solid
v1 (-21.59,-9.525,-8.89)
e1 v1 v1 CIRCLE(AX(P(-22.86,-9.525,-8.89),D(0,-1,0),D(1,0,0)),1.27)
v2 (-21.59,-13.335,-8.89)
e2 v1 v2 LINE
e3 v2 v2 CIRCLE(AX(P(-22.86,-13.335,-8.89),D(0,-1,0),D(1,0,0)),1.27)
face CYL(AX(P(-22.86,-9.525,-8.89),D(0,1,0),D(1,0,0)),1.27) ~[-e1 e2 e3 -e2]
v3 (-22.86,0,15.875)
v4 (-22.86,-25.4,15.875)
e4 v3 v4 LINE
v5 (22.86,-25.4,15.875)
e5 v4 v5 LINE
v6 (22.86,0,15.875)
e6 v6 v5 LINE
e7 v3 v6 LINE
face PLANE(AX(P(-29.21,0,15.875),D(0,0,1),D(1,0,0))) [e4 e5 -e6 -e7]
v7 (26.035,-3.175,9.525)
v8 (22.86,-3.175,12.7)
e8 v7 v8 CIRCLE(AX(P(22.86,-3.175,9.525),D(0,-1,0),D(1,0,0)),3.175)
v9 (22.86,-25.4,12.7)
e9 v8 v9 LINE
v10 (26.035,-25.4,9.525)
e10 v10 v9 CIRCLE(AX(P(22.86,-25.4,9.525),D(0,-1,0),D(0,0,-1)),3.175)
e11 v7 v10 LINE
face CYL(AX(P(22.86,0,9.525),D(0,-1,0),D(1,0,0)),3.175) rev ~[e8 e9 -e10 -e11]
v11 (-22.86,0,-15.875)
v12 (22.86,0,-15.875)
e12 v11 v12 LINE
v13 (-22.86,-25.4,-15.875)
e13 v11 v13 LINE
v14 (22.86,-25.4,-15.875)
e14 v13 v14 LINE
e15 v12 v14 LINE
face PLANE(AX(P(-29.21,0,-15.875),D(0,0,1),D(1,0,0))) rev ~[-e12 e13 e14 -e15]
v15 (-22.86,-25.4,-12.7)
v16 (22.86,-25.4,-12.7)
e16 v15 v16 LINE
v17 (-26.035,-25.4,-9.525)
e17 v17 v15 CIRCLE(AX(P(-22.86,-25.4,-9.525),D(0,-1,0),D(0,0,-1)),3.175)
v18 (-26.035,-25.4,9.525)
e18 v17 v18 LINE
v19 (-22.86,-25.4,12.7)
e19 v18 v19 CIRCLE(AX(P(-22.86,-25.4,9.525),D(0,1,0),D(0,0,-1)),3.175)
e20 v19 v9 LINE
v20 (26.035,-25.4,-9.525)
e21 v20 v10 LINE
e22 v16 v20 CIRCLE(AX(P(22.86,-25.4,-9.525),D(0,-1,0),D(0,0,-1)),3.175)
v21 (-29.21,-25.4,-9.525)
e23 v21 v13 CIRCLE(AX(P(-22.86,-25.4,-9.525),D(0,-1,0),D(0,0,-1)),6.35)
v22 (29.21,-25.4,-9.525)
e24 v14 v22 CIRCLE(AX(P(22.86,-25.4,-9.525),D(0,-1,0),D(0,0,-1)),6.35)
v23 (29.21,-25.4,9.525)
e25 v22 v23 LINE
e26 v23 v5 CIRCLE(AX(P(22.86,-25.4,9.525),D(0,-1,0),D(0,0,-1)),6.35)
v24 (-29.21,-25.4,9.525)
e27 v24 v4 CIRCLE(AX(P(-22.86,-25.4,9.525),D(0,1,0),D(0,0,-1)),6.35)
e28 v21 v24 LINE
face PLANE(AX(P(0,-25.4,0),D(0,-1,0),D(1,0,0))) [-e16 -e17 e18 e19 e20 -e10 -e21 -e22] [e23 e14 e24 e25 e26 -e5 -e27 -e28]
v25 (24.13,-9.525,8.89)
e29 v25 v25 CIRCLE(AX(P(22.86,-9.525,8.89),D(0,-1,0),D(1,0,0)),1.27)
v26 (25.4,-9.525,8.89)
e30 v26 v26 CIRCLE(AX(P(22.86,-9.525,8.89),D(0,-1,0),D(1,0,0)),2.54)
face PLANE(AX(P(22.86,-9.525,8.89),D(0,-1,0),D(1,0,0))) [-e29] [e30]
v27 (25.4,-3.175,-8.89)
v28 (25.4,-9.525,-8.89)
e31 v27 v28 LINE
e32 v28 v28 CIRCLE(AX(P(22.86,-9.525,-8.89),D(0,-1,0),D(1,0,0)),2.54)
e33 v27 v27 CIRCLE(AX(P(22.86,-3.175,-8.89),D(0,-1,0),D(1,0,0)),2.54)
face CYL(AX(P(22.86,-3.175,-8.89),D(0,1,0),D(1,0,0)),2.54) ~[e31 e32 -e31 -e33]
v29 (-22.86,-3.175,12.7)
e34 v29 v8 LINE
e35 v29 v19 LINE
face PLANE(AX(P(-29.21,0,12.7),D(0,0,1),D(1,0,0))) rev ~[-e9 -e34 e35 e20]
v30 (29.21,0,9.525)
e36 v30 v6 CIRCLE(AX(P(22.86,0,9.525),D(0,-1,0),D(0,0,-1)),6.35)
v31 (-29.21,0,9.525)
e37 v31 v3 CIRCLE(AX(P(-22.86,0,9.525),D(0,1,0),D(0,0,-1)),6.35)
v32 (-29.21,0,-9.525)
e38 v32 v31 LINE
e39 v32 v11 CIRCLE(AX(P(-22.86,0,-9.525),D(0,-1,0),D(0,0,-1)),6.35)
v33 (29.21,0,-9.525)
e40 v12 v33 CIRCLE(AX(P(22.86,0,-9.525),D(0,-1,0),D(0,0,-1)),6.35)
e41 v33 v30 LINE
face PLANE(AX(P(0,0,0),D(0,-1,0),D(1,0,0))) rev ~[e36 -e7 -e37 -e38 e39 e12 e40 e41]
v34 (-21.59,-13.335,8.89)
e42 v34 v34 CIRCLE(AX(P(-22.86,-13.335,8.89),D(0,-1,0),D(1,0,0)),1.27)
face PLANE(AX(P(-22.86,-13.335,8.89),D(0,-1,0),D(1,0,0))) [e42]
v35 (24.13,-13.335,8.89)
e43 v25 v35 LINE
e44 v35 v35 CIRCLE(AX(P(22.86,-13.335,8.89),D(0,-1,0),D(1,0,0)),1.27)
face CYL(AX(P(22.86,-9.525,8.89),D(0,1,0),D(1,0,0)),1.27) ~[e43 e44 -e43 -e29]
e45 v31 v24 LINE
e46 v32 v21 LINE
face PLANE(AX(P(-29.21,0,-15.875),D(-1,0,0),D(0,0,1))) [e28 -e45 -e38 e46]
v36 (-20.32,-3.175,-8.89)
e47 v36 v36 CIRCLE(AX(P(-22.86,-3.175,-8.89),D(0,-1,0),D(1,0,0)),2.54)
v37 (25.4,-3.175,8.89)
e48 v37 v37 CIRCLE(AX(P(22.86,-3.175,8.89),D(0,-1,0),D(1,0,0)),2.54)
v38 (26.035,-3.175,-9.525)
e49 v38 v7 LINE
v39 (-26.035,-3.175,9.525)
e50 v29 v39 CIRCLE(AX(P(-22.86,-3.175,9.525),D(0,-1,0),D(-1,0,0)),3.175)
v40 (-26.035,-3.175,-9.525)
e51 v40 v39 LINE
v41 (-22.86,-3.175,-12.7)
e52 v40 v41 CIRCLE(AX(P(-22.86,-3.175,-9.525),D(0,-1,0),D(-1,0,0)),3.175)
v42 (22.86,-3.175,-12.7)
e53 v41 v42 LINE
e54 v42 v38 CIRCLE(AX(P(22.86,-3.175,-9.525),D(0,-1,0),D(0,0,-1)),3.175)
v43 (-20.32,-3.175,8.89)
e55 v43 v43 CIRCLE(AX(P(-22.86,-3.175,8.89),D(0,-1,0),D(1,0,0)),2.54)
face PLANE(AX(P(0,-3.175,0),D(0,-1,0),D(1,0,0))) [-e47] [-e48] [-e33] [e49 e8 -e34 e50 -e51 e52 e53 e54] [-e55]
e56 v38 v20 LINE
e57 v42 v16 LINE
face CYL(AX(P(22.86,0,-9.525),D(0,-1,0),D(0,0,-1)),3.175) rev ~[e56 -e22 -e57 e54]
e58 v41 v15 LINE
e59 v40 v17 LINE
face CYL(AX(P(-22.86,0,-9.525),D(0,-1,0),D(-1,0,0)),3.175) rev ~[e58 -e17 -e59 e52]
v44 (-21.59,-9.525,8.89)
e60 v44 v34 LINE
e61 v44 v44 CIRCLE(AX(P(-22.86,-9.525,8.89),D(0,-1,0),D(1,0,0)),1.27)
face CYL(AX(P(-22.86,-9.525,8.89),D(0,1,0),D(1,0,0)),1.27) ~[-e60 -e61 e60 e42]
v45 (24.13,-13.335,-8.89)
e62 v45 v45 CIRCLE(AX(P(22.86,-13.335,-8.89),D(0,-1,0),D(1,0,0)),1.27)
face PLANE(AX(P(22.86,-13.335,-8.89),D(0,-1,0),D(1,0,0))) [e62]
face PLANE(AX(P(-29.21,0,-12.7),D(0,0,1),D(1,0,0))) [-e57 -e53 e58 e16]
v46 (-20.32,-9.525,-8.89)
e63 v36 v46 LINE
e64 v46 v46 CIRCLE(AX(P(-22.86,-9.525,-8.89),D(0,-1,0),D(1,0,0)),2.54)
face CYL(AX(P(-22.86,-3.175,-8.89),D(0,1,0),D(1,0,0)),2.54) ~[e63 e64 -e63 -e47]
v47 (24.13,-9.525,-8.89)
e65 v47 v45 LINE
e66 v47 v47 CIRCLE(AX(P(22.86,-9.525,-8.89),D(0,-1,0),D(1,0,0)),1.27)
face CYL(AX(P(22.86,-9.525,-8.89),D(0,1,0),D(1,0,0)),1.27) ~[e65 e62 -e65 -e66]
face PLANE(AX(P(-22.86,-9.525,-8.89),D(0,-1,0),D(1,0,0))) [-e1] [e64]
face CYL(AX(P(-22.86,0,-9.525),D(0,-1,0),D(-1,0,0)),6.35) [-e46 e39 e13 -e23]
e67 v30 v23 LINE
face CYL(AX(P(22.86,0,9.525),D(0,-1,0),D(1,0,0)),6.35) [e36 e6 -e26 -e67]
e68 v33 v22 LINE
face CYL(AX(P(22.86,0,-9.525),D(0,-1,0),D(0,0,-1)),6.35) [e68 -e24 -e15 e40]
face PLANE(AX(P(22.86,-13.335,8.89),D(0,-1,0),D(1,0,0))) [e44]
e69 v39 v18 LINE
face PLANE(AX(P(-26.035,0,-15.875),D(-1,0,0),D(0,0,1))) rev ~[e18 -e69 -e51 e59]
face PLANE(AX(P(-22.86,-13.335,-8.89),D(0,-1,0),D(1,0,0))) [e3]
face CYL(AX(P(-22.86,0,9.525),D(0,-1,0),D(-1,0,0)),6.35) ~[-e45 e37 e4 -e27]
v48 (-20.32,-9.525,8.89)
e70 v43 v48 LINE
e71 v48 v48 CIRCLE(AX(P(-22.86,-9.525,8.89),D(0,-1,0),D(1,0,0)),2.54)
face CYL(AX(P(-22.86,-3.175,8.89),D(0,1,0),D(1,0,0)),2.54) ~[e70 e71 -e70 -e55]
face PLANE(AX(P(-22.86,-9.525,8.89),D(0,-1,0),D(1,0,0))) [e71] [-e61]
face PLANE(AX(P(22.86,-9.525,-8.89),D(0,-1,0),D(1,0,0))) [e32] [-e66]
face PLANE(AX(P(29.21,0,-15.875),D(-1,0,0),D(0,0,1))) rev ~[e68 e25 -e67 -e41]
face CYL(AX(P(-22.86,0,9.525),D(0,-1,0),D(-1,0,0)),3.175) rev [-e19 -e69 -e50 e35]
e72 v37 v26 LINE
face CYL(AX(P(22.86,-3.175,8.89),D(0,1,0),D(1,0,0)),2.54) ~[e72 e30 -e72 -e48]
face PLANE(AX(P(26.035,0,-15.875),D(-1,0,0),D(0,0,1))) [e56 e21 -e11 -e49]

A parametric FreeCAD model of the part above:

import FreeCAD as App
import Part
import Sketcher
Q = App.Units.Quantity


def edges_at(feature, points):
    """Names of the edges that pass closest to the given points."""
    edges = feature.Shape.Edges
    near = lambda p: min(range(len(edges)), key=lambda i: edges[i].distToShape(Part.Vertex(*p))[0])
    return sorted({f"Edge{near(p) + 1}" for p in points})


def faces_at(feature, points):
    """Names of the faces that lie closest to the given points."""
    faces = feature.Shape.Faces
    near = lambda p: min(range(len(faces)), key=lambda i: faces[i].distToShape(Part.Vertex(*p))[0])
    return sorted({f"Face{near(p) + 1}" for p in points})


def add_polygon(sketch, points):
    """Adds a closed chain of lines whose ends are joined by coincident constraints."""
    first, n = sketch.GeometryCount, len(points)
    for a, b in zip(points, points[1:] + points[:1]):
        sketch.addGeometry(Part.LineSegment(App.Vector(*a, 0), App.Vector(*b, 0)), False)
    for i in range(n):
        sketch.addConstraint(Sketcher.Constraint("Coincident", first + i, 2, first + (i + 1) % n, 1))

doc = App.newDocument("Part")
body = doc.addObject("PartDesign::Body", "Body")

sketch1 = body.newObject("Sketcher::SketchObject", "Sketch")
sketch1.AttachmentSupport = (doc.getObject("XZ_Plane"), [""])
sketch1.MapMode = "FlatFace"
add_polygon(sketch1, [(-29.21, 15.875), (-29.21, -15.875), (29.21, -15.875), (29.21, 15.875)])
sketch1.addConstraint(Sketcher.Constraint("Vertical", 0))
sketch1.addConstraint(Sketcher.Constraint("Horizontal", 1))
sketch1.addConstraint(Sketcher.Constraint("Vertical", 2))
sketch1.addConstraint(Sketcher.Constraint("Horizontal", 3))
sketch1.addConstraint(Sketcher.Constraint("Symmetric", 0, 2, 2, 2, -1, 1))
sketch1.addConstraint(Sketcher.Constraint("DistanceX", 1, 1, 1, 2, Q("2.3 in")))
sketch1.addConstraint(Sketcher.Constraint("DistanceY", 0, 2, 0, 1, Q("1.25 in")))
pad1 = body.newObject("PartDesign::Pad", "Pad")
pad1.Profile = sketch1
pad1.Length = Q("1 in")
doc.recompute()

fillet = body.newObject("PartDesign::Fillet", "Fillet")
fillet.Base = (pad1, edges_at(pad1, [
    (29.21, -12.7, 15.875),
    (29.21, -12.7, -15.875),
    (-29.21, -12.7, 15.875),
    (-29.21, -12.7, -15.875),
]))
fillet.Radius = Q("0.25 in")
doc.recompute()

thickness = body.newObject("PartDesign::Thickness", "Thickness")
thickness.Base = (fillet, faces_at(fillet, [(0, -25.4, 0)]))
thickness.Value = Q("0.125 in")
thickness.Reversed = True
thickness.Join = "Arc"

sketch2 = body.newObject("Sketcher::SketchObject", "Sketch001")
sketch2.AttachmentSupport = (doc.getObject("XZ_Plane"), [""])
sketch2.MapMode = "FlatFace"
sketch2.AttachmentOffset = App.Placement(App.Vector(0, 0, 0.125 * 25.4), App.Rotation())
sketch2.addGeometry(Part.Circle(App.Vector(-22.86, 8.89, 0), App.Vector(0, 0, 1), 2.54), False)
sketch2.addGeometry(Part.Circle(App.Vector(22.86, 8.89, 0), App.Vector(0, 0, 1), 2.54), False)
sketch2.addGeometry(Part.Circle(App.Vector(-22.86, -8.89, 0), App.Vector(0, 0, 1), 2.54), False)
sketch2.addGeometry(Part.Circle(App.Vector(22.86, -8.89, 0), App.Vector(0, 0, 1), 2.54), False)
sketch2.addConstraint(Sketcher.Constraint("Equal", 0, 1))
sketch2.addConstraint(Sketcher.Constraint("Equal", 1, 2))
sketch2.addConstraint(Sketcher.Constraint("Equal", 2, 3))
sketch2.addConstraint(Sketcher.Constraint("Symmetric", 1, 3, 2, 3, -1, 1))
sketch2.addConstraint(Sketcher.Constraint("Symmetric", 0, 3, 3, 3, -1, 1))
sketch2.addConstraint(Sketcher.Constraint("Symmetric", 0, 3, 1, 3, -2))
sketch2.addConstraint(Sketcher.Constraint("Diameter", 0, Q("0.2 in")))
sketch2.addConstraint(Sketcher.Constraint("DistanceX", 0, 3, -1, 1, Q("0.9 in")))
sketch2.addConstraint(Sketcher.Constraint("DistanceY", 2, 3, 0, 3, Q("0.7 in")))
pad2 = body.newObject("PartDesign::Pad", "Pad001")
pad2.Profile = sketch2
pad2.Length = Q("0.25 in")

sketch3 = body.newObject("Sketcher::SketchObject", "Sketch002")
sketch3.AttachmentSupport = (doc.getObject("XZ_Plane"), [""])
sketch3.MapMode = "FlatFace"
sketch3.AttachmentOffset = App.Placement(App.Vector(0, 0, 0.375 * 25.4), App.Rotation())
sketch3.addGeometry(Part.Circle(App.Vector(-22.86, 8.89, 0), App.Vector(0, 0, 1), 1.27), False)
sketch3.addGeometry(Part.Circle(App.Vector(-22.86, -8.89, 0), App.Vector(0, 0, 1), 1.27), False)
sketch3.addGeometry(Part.Circle(App.Vector(22.86, -8.89, 0), App.Vector(0, 0, 1), 1.27), False)
sketch3.addGeometry(Part.Circle(App.Vector(22.86, 8.89, 0), App.Vector(0, 0, 1), 1.27), False)
sketch3.addConstraint(Sketcher.Constraint("Equal", 0, 1))
sketch3.addConstraint(Sketcher.Constraint("Equal", 1, 2))
sketch3.addConstraint(Sketcher.Constraint("Equal", 2, 3))
sketch3.addConstraint(Sketcher.Constraint("Symmetric", 0, 3, 2, 3, -1, 1))
sketch3.addConstraint(Sketcher.Constraint("Symmetric", 1, 3, 3, 3, -1, 1))
sketch3.addConstraint(Sketcher.Constraint("Symmetric", 1, 3, 2, 3, -2))
sketch3.addConstraint(Sketcher.Constraint("Diameter", 0, Q("0.1 in")))
sketch3.addConstraint(Sketcher.Constraint("DistanceX", 0, 3, -1, 1, Q("0.9 in")))
sketch3.addConstraint(Sketcher.Constraint("DistanceY", 1, 3, 0, 3, Q("0.7 in")))
pad3 = body.newObject("PartDesign::Pad", "Pad002")
pad3.Profile = sketch3
pad3.Length = Q("0.15 in")

doc.recompute()
